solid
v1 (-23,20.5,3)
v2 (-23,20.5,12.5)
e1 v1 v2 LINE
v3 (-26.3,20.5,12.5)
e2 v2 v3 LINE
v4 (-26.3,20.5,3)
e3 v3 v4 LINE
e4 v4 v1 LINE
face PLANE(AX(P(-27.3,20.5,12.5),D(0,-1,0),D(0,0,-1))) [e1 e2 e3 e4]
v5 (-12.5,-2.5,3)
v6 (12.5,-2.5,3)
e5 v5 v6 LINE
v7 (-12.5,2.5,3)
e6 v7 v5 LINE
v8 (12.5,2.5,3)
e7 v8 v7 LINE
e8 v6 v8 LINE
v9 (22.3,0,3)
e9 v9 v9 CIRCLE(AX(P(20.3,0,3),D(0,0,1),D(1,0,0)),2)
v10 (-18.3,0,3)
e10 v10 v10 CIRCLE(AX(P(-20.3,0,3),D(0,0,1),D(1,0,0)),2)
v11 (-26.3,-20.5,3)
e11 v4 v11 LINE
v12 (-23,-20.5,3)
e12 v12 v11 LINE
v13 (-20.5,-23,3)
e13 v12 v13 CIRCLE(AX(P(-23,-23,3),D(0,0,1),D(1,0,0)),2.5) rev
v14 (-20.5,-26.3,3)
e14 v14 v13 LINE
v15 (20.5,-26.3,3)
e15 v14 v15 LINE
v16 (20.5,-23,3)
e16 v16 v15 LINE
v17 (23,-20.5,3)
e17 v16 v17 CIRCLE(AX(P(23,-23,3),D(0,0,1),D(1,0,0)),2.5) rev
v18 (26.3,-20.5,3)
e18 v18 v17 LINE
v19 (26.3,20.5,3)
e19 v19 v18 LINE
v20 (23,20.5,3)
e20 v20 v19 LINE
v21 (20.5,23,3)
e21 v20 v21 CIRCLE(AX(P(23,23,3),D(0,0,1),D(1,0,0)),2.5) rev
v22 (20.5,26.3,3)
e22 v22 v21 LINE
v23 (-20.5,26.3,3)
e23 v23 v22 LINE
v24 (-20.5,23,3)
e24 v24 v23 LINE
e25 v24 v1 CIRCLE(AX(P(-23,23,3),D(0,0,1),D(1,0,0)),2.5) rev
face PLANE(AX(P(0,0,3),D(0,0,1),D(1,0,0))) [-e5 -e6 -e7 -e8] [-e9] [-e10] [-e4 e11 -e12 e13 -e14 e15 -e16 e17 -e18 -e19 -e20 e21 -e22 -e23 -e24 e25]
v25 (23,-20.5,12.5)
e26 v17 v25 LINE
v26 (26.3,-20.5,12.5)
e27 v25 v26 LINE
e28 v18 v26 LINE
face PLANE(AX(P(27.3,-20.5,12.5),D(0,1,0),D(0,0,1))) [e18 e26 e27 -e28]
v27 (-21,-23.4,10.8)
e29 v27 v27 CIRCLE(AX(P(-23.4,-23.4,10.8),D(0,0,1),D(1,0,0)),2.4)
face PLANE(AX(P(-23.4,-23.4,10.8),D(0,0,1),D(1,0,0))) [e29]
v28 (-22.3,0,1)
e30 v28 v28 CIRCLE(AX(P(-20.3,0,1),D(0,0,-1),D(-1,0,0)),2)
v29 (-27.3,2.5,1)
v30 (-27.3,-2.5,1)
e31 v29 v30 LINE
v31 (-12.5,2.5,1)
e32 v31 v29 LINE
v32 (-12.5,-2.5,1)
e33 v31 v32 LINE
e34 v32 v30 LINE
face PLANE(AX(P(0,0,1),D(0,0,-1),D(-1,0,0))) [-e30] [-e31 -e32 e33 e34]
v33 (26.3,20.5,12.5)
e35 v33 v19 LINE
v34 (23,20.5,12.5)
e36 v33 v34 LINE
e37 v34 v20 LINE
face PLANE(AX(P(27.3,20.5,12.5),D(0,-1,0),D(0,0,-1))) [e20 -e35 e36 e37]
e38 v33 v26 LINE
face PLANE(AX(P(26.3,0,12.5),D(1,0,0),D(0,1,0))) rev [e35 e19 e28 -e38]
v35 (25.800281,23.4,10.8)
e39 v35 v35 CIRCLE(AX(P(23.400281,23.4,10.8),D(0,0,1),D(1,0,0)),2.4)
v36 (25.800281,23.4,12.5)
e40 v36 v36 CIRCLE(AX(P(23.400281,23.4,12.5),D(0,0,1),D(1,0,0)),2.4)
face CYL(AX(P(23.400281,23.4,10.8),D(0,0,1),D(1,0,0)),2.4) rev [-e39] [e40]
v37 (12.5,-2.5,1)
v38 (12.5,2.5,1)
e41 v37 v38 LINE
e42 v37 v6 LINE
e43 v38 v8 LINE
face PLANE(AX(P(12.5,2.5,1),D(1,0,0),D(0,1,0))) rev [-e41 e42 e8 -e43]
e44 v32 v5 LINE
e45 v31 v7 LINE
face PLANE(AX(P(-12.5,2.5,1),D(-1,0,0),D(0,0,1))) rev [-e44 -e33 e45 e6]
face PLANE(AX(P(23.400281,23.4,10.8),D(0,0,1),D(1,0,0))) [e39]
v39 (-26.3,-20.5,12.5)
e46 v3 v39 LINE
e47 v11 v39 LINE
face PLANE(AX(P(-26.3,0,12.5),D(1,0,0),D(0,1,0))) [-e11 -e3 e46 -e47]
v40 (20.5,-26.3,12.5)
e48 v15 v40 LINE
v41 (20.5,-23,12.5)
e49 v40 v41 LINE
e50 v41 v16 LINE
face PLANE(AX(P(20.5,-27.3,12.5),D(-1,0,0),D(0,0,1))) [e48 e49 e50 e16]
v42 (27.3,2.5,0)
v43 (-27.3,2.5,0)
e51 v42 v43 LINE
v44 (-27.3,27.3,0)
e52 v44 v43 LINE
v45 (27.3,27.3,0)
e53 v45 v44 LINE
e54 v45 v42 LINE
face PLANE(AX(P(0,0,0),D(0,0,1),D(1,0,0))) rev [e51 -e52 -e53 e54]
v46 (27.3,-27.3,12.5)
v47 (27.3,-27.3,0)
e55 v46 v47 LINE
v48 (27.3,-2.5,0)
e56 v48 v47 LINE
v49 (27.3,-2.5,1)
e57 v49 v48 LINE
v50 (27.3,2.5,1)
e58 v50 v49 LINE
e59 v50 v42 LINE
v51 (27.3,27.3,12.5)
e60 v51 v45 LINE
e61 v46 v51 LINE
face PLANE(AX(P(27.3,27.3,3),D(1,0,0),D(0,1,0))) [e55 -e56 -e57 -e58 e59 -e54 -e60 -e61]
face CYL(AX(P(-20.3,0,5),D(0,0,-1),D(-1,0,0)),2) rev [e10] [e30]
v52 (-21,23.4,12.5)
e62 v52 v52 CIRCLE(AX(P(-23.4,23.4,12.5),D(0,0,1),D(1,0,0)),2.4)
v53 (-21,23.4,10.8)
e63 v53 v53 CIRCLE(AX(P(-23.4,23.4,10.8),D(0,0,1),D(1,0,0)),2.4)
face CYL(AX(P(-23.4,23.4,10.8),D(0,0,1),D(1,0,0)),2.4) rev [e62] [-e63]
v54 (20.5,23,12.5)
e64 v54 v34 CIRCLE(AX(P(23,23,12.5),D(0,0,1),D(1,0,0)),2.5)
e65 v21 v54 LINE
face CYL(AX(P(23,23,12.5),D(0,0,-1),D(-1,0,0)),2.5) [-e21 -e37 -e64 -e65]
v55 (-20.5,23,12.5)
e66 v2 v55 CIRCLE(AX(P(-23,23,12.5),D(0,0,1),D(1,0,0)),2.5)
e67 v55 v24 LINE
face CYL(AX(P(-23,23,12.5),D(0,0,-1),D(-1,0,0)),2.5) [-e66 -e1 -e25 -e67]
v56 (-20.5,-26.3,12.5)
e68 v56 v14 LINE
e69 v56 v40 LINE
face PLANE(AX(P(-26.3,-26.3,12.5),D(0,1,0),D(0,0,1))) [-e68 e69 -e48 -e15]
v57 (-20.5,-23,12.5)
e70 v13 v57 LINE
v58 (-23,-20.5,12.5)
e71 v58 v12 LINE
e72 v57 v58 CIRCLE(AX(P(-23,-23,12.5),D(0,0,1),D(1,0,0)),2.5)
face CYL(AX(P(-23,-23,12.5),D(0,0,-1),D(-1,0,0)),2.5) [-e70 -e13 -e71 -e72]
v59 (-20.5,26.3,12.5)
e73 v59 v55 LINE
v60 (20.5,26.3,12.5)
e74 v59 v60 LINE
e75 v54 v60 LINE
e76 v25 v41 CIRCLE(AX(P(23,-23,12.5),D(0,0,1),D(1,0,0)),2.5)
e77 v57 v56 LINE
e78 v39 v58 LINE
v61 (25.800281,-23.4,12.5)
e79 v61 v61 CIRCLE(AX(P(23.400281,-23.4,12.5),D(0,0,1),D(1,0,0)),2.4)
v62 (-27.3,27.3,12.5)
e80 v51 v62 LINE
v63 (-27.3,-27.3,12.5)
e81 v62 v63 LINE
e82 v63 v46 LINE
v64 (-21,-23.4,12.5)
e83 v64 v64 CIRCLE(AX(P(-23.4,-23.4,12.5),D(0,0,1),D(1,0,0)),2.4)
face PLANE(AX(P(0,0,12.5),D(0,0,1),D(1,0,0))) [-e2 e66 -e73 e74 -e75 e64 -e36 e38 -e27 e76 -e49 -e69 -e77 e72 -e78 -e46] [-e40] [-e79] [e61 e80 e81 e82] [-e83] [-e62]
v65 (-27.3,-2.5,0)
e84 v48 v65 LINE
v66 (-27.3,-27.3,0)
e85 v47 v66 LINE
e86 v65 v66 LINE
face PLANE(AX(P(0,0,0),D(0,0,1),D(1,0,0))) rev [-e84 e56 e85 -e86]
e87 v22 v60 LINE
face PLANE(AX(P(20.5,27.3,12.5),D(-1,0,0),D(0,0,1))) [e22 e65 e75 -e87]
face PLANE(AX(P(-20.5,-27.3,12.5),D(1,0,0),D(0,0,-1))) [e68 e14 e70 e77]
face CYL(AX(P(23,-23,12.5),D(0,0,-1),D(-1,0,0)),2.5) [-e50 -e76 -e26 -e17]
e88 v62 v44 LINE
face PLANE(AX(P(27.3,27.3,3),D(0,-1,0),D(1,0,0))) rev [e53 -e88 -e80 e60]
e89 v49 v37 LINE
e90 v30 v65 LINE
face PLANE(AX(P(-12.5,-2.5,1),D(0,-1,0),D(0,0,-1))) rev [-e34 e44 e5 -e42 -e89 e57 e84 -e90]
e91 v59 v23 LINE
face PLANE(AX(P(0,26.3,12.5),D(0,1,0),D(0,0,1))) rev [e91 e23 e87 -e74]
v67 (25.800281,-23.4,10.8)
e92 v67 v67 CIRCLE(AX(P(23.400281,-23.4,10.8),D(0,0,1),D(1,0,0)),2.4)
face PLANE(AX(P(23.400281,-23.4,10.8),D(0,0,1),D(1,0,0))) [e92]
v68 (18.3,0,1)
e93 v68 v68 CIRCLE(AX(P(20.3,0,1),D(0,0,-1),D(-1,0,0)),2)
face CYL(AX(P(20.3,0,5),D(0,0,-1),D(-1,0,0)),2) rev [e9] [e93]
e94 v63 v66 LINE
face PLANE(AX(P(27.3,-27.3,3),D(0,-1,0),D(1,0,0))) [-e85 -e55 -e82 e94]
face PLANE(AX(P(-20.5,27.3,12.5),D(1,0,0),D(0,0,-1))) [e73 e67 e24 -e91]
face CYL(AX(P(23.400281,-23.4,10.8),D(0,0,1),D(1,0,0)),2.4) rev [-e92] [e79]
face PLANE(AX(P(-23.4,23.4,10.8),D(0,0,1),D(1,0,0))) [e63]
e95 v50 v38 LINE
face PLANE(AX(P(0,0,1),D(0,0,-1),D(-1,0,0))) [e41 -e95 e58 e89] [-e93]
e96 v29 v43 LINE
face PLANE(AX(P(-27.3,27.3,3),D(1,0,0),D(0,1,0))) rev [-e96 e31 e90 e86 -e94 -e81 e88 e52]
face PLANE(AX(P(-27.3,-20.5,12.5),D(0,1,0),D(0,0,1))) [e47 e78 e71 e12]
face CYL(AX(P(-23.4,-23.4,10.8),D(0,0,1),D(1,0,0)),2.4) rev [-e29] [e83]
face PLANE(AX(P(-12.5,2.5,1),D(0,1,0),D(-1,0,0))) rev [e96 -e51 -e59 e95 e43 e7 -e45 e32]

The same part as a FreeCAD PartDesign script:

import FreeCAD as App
import Part
import Sketcher
from FreeCAD import Vector


def edges_at(feature, points):
    """Names of the edges that pass closest to the given points."""
    edges = feature.Shape.Edges
    near = lambda p: min(range(len(edges)), key=lambda i: edges[i].distToShape(Part.Vertex(*p))[0])
    return sorted({f"Edge{near(p) + 1}" for p in points})


def add_polygon(sketch, points):
    """Adds a closed chain of lines whose ends are joined by coincident constraints."""
    first, n = sketch.GeometryCount, len(points)
    for a, b in zip(points, points[1:] + points[:1]):
        sketch.addGeometry(Part.LineSegment(App.Vector(*a, 0), App.Vector(*b, 0)), False)
    for i in range(n):
        sketch.addConstraint(Sketcher.Constraint("Coincident", first + i, 2, first + (i + 1) % n, 1))

doc = App.newDocument("Part")
body = doc.addObject("PartDesign::Body", "Body")

# Sketch on XY plane
sketch1 = body.newObject("Sketcher::SketchObject", "Sketch")
sketch1.AttachmentSupport = (doc.getObject("XY_Plane"), [""])
sketch1.MapMode = "FlatFace"
add_polygon(sketch1, [(-27, 27), (-27, -27), (27, -27), (27, 27)])  # lines 0-3
sketch1.addConstraint(Sketcher.Constraint("Vertical", 0))
sketch1.addConstraint(Sketcher.Constraint("Horizontal", 1))
sketch1.addConstraint(Sketcher.Constraint("Vertical", 2))
sketch1.addConstraint(Sketcher.Constraint("Horizontal", 3))
sketch1.addConstraint(Sketcher.Constraint("Symmetric", 0, 2, 2, 2, -1, 1))
sketch1.addConstraint(Sketcher.Constraint("Equal", 3, 0))
sketch1.addConstraint(Sketcher.Constraint("DistanceX", 1, 1, 1, 2, 54.6))
pad1 = body.newObject("PartDesign::Pad", "Pad")
pad1.Profile = sketch1
pad1.Length = 3

# Sketch on XY plane
sketch2 = body.newObject("Sketcher::SketchObject", "Sketch001")
sketch2.AttachmentSupport = (doc.getObject("XY_Plane"), [""])
sketch2.MapMode = "FlatFace"
sketch2.AttachmentOffset = App.Placement(Vector(0, 0, 3), App.Rotation())
add_polygon(sketch2, [(-12, 2), (-12, -2), (12, -2), (12, 2)])  # lines 0-3
sketch2.addConstraint(Sketcher.Constraint("Vertical", 0))
sketch2.addConstraint(Sketcher.Constraint("Horizontal", 1))
sketch2.addConstraint(Sketcher.Constraint("Vertical", 2))
sketch2.addConstraint(Sketcher.Constraint("Horizontal", 3))
sketch2.addConstraint(Sketcher.Constraint("Symmetric", 0, 2, 2, 2, -1, 1))
sketch2.addConstraint(Sketcher.Constraint("DistanceX", 1, 1, 1, 2, 25.0))
sketch2.addConstraint(Sketcher.Constraint("DistanceY", 0, 2, 0, 1, 5.0))
pocket1 = body.newObject("PartDesign::Pocket", "Pocket")
pocket1.Profile = sketch2
pocket1.Length = 2

# Sketch on XY plane
sketch3 = body.newObject("Sketcher::SketchObject", "Sketch002")
sketch3.AttachmentSupport = (doc.getObject("XY_Plane"), [""])
sketch3.MapMode = "FlatFace"
add_polygon(sketch3, [(27, 2), (27, -2), (-27, -2), (-27, 2)])  # lines 0-3
sketch3.addConstraint(Sketcher.Constraint("Vertical", 0))
sketch3.addConstraint(Sketcher.Constraint("Horizontal", 1))
sketch3.addConstraint(Sketcher.Constraint("Vertical", 2))
sketch3.addConstraint(Sketcher.Constraint("Horizontal", 3))
sketch3.addConstraint(Sketcher.Constraint("Symmetric", 0, 2, 2, 2, -1, 1))
sketch3.addConstraint(Sketcher.Constraint("DistanceY", 0, 2, 0, 1, 5.0))
sketch3.addConstraint(Sketcher.Constraint("DistanceX", 1, 2, 1, 1, 54.6))
pocket2 = body.newObject("PartDesign::Pocket", "Pocket001")
pocket2.Profile = sketch3
pocket2.Length = 1
pocket2.Reversed = True

# Sketch on XY plane
sketch4 = body.newObject("Sketcher::SketchObject", "Sketch003")
sketch4.AttachmentSupport = (doc.getObject("XY_Plane"), [""])
sketch4.MapMode = "FlatFace"
sketch4.AttachmentOffset = App.Placement(Vector(0, 0, 3), App.Rotation())
add_polygon(sketch4, [(27, 27), (-27, 27), (-27, -27), (27, -27)])  # lines 0-3
add_polygon(sketch4, [(-26, -26), (-26, 26), (26, 26), (26, -26)])  # lines 4-7
sketch4.addConstraint(Sketcher.Constraint("Horizontal", 0))
sketch4.addConstraint(Sketcher.Constraint("Vertical", 1))
sketch4.addConstraint(Sketcher.Constraint("Horizontal", 2))
sketch4.addConstraint(Sketcher.Constraint("Vertical", 3))
sketch4.addConstraint(Sketcher.Constraint("Vertical", 4))
sketch4.addConstraint(Sketcher.Constraint("Horizontal", 5))
sketch4.addConstraint(Sketcher.Constraint("Vertical", 6))
sketch4.addConstraint(Sketcher.Constraint("Horizontal", 7))
sketch4.addConstraint(Sketcher.Constraint("Symmetric", 0, 2, 2, 2, -1, 1))
sketch4.addConstraint(Sketcher.Constraint("Symmetric", 4, 2, 6, 2, -1, 1))
sketch4.addConstraint(Sketcher.Constraint("Equal", 2, 1))
sketch4.addConstraint(Sketcher.Constraint("Equal", 7, 4))
sketch4.addConstraint(Sketcher.Constraint("DistanceX", 0, 2, 0, 1, 54.6))
sketch4.addConstraint(Sketcher.Constraint("DistanceX", 5, 1, 5, 2, 52.6))
pad2 = body.newObject("PartDesign::Pad", "Pad001")
pad2.Profile = sketch4
pad2.Length = 9.5

# Sketch on XY plane
sketch5 = body.newObject("Sketcher::SketchObject", "Sketch004")
sketch5.AttachmentSupport = (doc.getObject("XY_Plane"), [""])
sketch5.MapMode = "FlatFace"
sketch5.AttachmentOffset = App.Placement(Vector(0, 0, 1), App.Rotation())
sketch5.addGeometry(Part.Circle(Vector(20.3, 0, 0), Vector(0, 0, 1), 2), False)
sketch5.addGeometry(Part.Circle(Vector(-20.3, 0, 0), Vector(0, 0, 1), 2), False)
sketch5.addConstraint(Sketcher.Constraint("Equal", 0, 1))
sketch5.addConstraint(Sketcher.Constraint("Symmetric", 0, 3, 1, 3, -1, 1))
sketch5.addConstraint(Sketcher.Constraint("PointOnObject", 0, 3, -1))
sketch5.addConstraint(Sketcher.Constraint("Diameter", 0, 4.0))
sketch5.addConstraint(Sketcher.Constraint("DistanceX", -1, 1, 0, 3, 20.3))
pocket3 = body.newObject("PartDesign::Pocket", "Pocket002")
pocket3.Profile = sketch5
pocket3.Length = 4
pocket3.Reversed = True

# Sketch on XY plane
sketch6 = body.newObject("Sketcher::SketchObject", "Sketch005")
sketch6.AttachmentSupport = (doc.getObject("XY_Plane"), [""])
sketch6.MapMode = "FlatFace"
add_polygon(sketch6, [(27, 27), (27, 20), (20, 20), (20, 27)])  # lines 0-3
add_polygon(sketch6, [(-20, 27), (-20, 20), (-27, 20), (-27, 27)])  # lines 4-7
add_polygon(sketch6, [(27, -20), (27, -27), (20, -27), (20, -20)])  # lines 8-11
add_polygon(sketch6, [(-20, -20), (-20, -27), (-27, -27), (-27, -20)])  # lines 12-15
sketch6.addConstraint(Sketcher.Constraint("Vertical", 0))
sketch6.addConstraint(Sketcher.Constraint("Horizontal", 1))
sketch6.addConstraint(Sketcher.Constraint("Vertical", 2))
sketch6.addConstraint(Sketcher.Constraint("Horizontal", 3))
sketch6.addConstraint(Sketcher.Constraint("Vertical", 4))
sketch6.addConstraint(Sketcher.Constraint("Horizontal", 5))
sketch6.addConstraint(Sketcher.Constraint("Vertical", 6))
sketch6.addConstraint(Sketcher.Constraint("Horizontal", 7))
sketch6.addConstraint(Sketcher.Constraint("Vertical", 8))
sketch6.addConstraint(Sketcher.Constraint("Horizontal", 9))
sketch6.addConstraint(Sketcher.Constraint("Vertical", 10))
sketch6.addConstraint(Sketcher.Constraint("Horizontal", 11))
sketch6.addConstraint(Sketcher.Constraint("Vertical", 12))
sketch6.addConstraint(Sketcher.Constraint("Horizontal", 13))
sketch6.addConstraint(Sketcher.Constraint("Vertical", 14))
sketch6.addConstraint(Sketcher.Constraint("Horizontal", 15))
sketch6.addConstraint(Sketcher.Constraint("Symmetric", 6, 2, 8, 2, -1, 1))
sketch6.addConstraint(Sketcher.Constraint("Symmetric", 4, 2, 10, 2, -1, 1))
sketch6.addConstraint(Sketcher.Constraint("Symmetric", 2, 2, 12, 2, -1, 1))
sketch6.addConstraint(Sketcher.Constraint("Symmetric", 0, 2, 14, 2, -1, 1))
sketch6.addConstraint(Sketcher.Constraint("Symmetric", 1, 2, 4, 2, -2))
sketch6.addConstraint(Sketcher.Constraint("Symmetric", 3, 2, 6, 2, -2))
sketch6.addConstraint(Sketcher.Constraint("Equal", 15, 0))
sketch6.addConstraint(Sketcher.Constraint("DistanceX", 1, 2, 1, 1, 6.8))
sketch6.addConstraint(Sketcher.Constraint("DistanceX", 4, 2, 1, 2, 41.0))
sketch6.addConstraint(Sketcher.Constraint("DistanceY", 10, 2, 1, 2, 41.0))
pad3 = body.newObject("PartDesign::Pad", "Pad002")
pad3.Profile = sketch6
pad3.Length = 12.5

# Sketch on XY plane
sketch7 = body.newObject("Sketcher::SketchObject", "Sketch006")
sketch7.AttachmentSupport = (doc.getObject("XY_Plane"), [""])
sketch7.MapMode = "FlatFace"
sketch7.AttachmentOffset = App.Placement(Vector(0, 0, 12.5), App.Rotation())
sketch7.addGeometry(Part.Circle(Vector(-23.4, -23.4, 0), Vector(0, 0, 1), 2.4), False)
sketch7.addGeometry(Part.Circle(Vector(-23.4, 23.4, 0), Vector(0, 0, 1), 2.4), False)
sketch7.addGeometry(Part.Circle(Vector(23.4, 23.4, 0), Vector(0, 0, 1), 2.4), False)
sketch7.addGeometry(Part.Circle(Vector(23.4, -23.4, 0), Vector(0, 0, 1), 2.4), False)
sketch7.addConstraint(Sketcher.Constraint("Equal", 0, 1))
sketch7.addConstraint(Sketcher.Constraint("Equal", 1, 2))
sketch7.addConstraint(Sketcher.Constraint("Equal", 2, 3))
sketch7.addConstraint(Sketcher.Constraint("Symmetric", 0, 3, 1, 3, -1))
sketch7.addConstraint(Sketcher.Constraint("Symmetric", 2, 3, 3, 3, -1))
sketch7.addConstraint(Sketcher.Constraint("Horizontal", 1, 3, 2, 3))
sketch7.addConstraint(Sketcher.Constraint("Diameter", 0, 4.8))
sketch7.addConstraint(Sketcher.Constraint("DistanceX", 0, 3, -1, 1, 23.4))
sketch7.addConstraint(Sketcher.Constraint("DistanceY", 0, 3, -1, 1, 23.4))
sketch7.addConstraint(Sketcher.Constraint("DistanceX", -1, 1, 2, 3, 23.400281))
pocket4 = body.newObject("PartDesign::Pocket", "Pocket003")
pocket4.Profile = sketch7
pocket4.Length = 1.7
doc.recompute()

fillet = body.newObject("PartDesign::Fillet", "Fillet")
fillet.Base = (pocket4, edges_at(pocket4, [
    (-20.5, 20.5, 7.75),
    (20.5, -20.5, 7.75),
    (-20.5, -20.5, 7.75),
    (20.5, 20.5, 7.75),
]))
fillet.Radius = 2.5

doc.recompute()
